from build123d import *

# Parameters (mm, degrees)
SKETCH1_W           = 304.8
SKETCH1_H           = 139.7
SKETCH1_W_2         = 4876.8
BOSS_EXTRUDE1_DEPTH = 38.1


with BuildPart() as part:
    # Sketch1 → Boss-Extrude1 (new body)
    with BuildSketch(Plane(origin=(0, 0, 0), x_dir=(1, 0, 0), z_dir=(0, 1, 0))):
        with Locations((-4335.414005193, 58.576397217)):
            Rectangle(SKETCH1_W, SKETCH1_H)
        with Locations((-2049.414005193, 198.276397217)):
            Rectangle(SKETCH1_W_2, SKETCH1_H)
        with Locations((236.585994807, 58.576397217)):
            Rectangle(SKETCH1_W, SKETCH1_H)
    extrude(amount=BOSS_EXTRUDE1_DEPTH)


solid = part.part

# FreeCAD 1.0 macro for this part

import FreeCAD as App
import Part
import Sketcher
from FreeCAD import Vector
Q = App.Units.Quantity


def add_polygon(sketch, points):
    """Adds a closed chain of lines whose ends are joined by coincident constraints."""
    first, n = sketch.GeometryCount, len(points)
    for a, b in zip(points, points[1:] + points[:1]):
        sketch.addGeometry(Part.LineSegment(App.Vector(*a, 0), App.Vector(*b, 0)), False)
    for i in range(n):
        sketch.addConstraint(Sketcher.Constraint("Coincident", first + i, 2, first + (i + 1) % n, 1))

doc = App.newDocument("Part")
params = doc.addObject("Spreadsheet::Sheet", "Params")
for row, (alias, value) in enumerate([
    ("sketch1_width", "12 in"),
    ("sketch1_width2", "168 in"),
    ("sketch1_height", "11 in"),
    ("sketch1_height2", "5.5 in"),
    ("pad1_length", "1.5 in"),
], start=1):
    params.set(f"A{row}", alias)
    params.set(f"B{row}", "=" + value)
    params.setAlias(f"B{row}", alias)

body = doc.addObject("PartDesign::Body", "Body")

# Sketch on XZ plane
sketch1 = body.newObject("Sketcher::SketchObject", "Sketch")
sketch1.AttachmentSupport = (doc.getObject("XZ_Plane"), [""])
sketch1.MapMode = "FlatFace"
add_polygon(sketch1, [(-4488, 11), (-4183, 11), (-4183, -128), (84, -128), (84, 11), (389, 11), (389, -268), (-4488, -268)])  # lines 0-7
sketch1.addConstraint([
    Sketcher.Constraint("Horizontal", 0),
    Sketcher.Constraint("Vertical", 1),
    Sketcher.Constraint("Horizontal", 2),
    Sketcher.Constraint("Vertical", 3),
    Sketcher.Constraint("Horizontal", 4),
    Sketcher.Constraint("Vertical", 5),
    Sketcher.Constraint("Horizontal", 6),
    Sketcher.Constraint("Vertical", 7),
    Sketcher.Constraint("Horizontal", 0, 2, 3, 2),
    Sketcher.Constraint("Equal", 0, 4),
    Sketcher.Constraint("DistanceX", 0, 1, 0, 2, Q("12 in")),
    Sketcher.Constraint("DistanceX", 2, 1, 2, 2, Q("168 in")),
    Sketcher.Constraint("DistanceY", 5, 2, 5, 1, Q("11 in")),
    Sketcher.Constraint("DistanceY", 1, 2, 1, 1, Q("5.5 in")),
    Sketcher.Constraint("DistanceX", 0, 2, -1, 1, 4183.014005),
    Sketcher.Constraint("DistanceY", -1, 1, 0, 2, 11.273603),
])
sketch1.setExpression("Constraints[18]", "Params.sketch1_width")
sketch1.setExpression("Constraints[19]", "Params.sketch1_width2")
sketch1.setExpression("Constraints[20]", "Params.sketch1_height")
sketch1.setExpression("Constraints[21]", "Params.sketch1_height2")
pad1 = body.newObject("PartDesign::Pad", "Pad")
pad1.Profile = sketch1
pad1.setExpression("Length", "Params.pad1_length")
pad1.Reversed = True

doc.recompute()
